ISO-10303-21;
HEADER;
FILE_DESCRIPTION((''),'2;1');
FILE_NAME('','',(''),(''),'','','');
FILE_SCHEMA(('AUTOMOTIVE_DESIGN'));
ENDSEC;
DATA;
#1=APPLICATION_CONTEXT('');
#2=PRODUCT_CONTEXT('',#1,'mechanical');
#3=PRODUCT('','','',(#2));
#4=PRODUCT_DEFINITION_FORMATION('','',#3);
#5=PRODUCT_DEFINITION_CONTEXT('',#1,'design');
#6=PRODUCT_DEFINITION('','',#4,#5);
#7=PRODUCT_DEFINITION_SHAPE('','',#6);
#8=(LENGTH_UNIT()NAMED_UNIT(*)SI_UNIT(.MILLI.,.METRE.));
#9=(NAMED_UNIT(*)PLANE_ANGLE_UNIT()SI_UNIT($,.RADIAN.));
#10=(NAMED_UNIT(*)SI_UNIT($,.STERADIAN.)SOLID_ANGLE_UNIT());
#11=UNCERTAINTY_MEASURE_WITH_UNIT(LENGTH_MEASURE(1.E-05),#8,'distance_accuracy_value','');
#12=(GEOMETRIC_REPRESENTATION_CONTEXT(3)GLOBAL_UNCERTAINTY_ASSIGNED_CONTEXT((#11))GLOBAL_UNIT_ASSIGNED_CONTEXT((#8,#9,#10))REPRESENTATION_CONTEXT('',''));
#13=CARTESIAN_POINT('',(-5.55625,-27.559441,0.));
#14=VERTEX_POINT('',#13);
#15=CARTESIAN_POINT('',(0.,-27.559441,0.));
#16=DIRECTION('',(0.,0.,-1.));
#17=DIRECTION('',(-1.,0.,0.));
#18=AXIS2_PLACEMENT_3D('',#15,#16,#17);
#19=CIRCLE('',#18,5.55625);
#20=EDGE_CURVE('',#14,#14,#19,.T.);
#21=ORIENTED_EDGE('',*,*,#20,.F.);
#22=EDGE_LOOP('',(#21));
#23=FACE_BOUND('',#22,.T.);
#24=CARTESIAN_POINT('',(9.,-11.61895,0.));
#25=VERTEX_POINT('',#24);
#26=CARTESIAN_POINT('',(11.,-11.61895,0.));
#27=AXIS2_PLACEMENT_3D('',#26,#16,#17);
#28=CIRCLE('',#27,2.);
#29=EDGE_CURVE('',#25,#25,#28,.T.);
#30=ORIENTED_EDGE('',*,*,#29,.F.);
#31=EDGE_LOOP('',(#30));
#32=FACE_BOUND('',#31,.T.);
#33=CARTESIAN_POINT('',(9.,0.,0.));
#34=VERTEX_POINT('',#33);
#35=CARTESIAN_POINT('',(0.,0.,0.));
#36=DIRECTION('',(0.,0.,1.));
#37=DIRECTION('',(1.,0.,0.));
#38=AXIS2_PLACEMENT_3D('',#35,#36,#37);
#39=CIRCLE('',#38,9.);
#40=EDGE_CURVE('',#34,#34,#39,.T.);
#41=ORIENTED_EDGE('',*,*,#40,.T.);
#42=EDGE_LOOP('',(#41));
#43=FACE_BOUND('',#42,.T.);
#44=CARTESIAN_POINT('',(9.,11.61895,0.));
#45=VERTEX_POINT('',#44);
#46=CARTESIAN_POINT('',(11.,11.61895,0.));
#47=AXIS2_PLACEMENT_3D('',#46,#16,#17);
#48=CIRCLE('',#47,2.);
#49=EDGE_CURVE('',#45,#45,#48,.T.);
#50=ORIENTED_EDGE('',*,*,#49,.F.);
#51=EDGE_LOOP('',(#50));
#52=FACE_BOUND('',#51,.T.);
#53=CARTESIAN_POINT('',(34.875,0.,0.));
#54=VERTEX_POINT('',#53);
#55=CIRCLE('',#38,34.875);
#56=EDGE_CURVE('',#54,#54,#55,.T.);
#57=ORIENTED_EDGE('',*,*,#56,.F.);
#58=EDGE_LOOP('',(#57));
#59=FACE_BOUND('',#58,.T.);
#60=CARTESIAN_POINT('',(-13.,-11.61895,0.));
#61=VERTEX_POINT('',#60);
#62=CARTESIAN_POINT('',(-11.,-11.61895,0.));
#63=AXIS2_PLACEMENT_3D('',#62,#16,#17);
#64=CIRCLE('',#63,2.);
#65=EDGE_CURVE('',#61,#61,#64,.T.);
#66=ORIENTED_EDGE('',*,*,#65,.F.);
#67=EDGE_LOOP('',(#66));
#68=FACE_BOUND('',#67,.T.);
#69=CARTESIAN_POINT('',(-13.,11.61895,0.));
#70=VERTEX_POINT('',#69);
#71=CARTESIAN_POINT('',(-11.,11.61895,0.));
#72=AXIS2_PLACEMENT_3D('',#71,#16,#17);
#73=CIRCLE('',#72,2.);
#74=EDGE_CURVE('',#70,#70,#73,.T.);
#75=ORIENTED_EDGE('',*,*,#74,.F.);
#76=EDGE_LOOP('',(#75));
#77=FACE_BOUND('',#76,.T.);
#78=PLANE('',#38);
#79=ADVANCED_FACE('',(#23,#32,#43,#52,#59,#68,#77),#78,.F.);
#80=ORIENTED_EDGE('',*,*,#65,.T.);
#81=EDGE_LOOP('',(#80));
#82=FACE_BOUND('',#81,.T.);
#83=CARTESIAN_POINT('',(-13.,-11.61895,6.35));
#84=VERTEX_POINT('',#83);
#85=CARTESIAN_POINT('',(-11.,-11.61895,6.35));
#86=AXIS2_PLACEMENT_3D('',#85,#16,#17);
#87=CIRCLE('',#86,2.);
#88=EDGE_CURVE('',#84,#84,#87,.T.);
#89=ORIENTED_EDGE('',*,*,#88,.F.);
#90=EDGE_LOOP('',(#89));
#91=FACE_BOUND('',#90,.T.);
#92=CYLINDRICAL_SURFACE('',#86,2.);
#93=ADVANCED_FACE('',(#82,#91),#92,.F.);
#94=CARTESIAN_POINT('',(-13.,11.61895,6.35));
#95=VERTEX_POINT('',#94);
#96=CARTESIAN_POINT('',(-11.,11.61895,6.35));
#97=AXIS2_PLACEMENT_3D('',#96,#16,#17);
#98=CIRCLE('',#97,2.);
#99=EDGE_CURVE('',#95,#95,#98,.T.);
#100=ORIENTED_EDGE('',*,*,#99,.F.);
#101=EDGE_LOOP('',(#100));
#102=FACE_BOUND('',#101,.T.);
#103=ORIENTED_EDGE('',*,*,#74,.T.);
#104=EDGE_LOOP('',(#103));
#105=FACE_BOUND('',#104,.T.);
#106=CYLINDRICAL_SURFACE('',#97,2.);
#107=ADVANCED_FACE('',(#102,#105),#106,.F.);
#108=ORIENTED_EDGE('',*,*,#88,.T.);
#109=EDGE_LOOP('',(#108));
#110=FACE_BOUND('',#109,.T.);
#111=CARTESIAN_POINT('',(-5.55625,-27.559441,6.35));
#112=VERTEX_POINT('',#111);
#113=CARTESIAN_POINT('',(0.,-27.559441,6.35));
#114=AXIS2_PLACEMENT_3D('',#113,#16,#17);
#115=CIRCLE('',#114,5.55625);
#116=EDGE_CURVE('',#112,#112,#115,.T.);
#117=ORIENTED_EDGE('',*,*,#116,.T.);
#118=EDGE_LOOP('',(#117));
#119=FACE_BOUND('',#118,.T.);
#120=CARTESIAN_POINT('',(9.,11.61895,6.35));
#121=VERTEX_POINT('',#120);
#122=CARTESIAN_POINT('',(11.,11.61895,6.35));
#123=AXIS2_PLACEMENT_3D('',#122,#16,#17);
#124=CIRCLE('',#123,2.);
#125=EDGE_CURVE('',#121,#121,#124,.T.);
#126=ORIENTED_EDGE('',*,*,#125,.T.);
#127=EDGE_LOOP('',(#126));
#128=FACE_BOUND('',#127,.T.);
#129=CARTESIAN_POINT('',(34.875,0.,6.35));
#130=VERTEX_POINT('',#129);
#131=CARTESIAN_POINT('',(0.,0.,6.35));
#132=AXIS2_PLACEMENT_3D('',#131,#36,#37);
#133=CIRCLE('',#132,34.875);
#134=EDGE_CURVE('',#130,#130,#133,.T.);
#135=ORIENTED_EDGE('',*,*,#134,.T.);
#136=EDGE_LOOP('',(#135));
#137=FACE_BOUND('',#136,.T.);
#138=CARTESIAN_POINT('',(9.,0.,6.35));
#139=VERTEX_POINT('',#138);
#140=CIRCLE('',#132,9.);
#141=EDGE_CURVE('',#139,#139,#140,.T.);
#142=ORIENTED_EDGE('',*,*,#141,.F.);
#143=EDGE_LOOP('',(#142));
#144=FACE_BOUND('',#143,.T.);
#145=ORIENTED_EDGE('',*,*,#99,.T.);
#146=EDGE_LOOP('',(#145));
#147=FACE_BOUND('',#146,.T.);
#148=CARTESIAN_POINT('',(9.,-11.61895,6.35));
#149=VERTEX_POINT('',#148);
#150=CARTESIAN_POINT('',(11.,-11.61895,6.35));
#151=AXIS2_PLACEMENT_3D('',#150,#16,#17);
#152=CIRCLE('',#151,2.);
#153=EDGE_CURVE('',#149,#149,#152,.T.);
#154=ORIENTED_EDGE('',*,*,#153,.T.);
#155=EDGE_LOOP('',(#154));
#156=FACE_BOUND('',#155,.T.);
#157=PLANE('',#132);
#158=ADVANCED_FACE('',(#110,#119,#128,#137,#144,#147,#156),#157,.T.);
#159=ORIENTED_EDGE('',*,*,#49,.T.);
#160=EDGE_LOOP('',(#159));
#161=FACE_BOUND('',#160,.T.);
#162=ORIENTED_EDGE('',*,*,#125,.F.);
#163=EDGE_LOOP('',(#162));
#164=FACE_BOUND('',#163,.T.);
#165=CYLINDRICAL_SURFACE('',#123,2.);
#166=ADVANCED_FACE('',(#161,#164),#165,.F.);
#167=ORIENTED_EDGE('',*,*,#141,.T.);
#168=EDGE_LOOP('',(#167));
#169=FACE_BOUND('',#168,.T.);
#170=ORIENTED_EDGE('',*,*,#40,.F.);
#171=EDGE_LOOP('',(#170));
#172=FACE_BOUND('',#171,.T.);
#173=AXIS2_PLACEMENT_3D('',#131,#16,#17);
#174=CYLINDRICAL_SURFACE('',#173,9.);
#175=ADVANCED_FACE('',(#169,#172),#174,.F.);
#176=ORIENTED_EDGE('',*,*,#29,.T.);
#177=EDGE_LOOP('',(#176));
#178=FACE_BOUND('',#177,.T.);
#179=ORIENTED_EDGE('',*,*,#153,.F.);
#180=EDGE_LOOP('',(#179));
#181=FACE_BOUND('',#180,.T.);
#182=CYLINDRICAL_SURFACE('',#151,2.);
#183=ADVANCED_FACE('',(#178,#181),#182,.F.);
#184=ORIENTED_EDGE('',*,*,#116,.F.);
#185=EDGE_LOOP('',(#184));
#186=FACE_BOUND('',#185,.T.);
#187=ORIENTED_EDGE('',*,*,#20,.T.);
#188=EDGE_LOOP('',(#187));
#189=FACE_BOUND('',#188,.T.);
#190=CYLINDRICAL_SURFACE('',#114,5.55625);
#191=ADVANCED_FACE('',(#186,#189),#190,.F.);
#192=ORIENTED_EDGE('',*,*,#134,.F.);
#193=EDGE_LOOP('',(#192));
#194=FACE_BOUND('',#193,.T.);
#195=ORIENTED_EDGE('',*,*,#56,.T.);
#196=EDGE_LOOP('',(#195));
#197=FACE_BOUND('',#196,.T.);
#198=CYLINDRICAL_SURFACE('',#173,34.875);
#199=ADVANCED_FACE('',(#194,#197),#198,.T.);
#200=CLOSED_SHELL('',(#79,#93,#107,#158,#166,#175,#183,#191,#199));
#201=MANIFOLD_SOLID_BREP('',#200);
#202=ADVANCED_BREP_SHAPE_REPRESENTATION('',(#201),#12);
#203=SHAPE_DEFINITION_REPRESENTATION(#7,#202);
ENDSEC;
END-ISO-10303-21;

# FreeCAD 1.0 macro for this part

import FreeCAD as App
import Part
import Sketcher
Q = App.Units.Quantity

doc = App.newDocument("Part")
body = doc.addObject("PartDesign::Body", "Body")

sketch1 = body.newObject("Sketcher::SketchObject", "Sketch")
sketch1.AttachmentSupport = (doc.getObject("XY_Plane"), [""])
sketch1.MapMode = "FlatFace"
sketch1.addGeometry([
    Part.Circle(App.Vector(0, 0, 0), App.Vector(0, 0, 1), 35),
    Part.Circle(App.Vector(0, 0, 0), App.Vector(0, 0, 1), 9),
], False)
sketch1.addConstraint([
    Sketcher.Constraint("Coincident", 0, 3, -1, 1),
    Sketcher.Constraint("Coincident", 1, 3, -1, 1),
    Sketcher.Constraint("Diameter", 1, Q("18 mm")),
    Sketcher.Constraint("Diameter", 0, Q("69.75 mm")),
])
pad1 = body.newObject("PartDesign::Pad", "Pad")
pad1.Profile = sketch1
pad1.Length = 6.35

sketch2 = body.newObject("Sketcher::SketchObject", "Sketch001")
sketch2.AttachmentSupport = (doc.getObject("XY_Plane"), [""])
sketch2.MapMode = "FlatFace"
sketch2.addGeometry([
    Part.Circle(App.Vector(11, 11.6, 0), App.Vector(0, 0, 1), 2),
    Part.Circle(App.Vector(-11, 11.6, 0), App.Vector(0, 0, 1), 2),
    Part.Circle(App.Vector(-11, -11.6, 0), App.Vector(0, 0, 1), 2),
    Part.Circle(App.Vector(11, -11.6, 0), App.Vector(0, 0, 1), 2),
], False)
sketch2.addConstraint([
    Sketcher.Constraint("Equal", 0, 1),
    Sketcher.Constraint("Equal", 1, 2),
    Sketcher.Constraint("Equal", 2, 3),
    Sketcher.Constraint("Symmetric", 0, 3, 2, 3, -1, 1),
    Sketcher.Constraint("Symmetric", 1, 3, 3, 3, -1, 1),
    Sketcher.Constraint("Symmetric", 0, 3, 1, 3, -2),
    Sketcher.Constraint("Diameter", 0, Q("4 mm")),
    Sketcher.Constraint("DistanceX", -1, 1, 0, 3, Q("11 mm")),
    Sketcher.Constraint("DistanceY", 2, 3, 1, 3, Q("23.2379 mm")),
])
pocket1 = body.newObject("PartDesign::Pocket", "Pocket")
pocket1.Profile = sketch2
pocket1.Type = "ThroughAll"
pocket1.Reversed = True

sketch3 = body.newObject("Sketcher::SketchObject", "Sketch002")
sketch3.AttachmentSupport = (doc.getObject("XY_Plane"), [""])
sketch3.MapMode = "FlatFace"
sketch3.addGeometry(Part.Circle(App.Vector(0, -28, 0), App.Vector(0, 0, 1), 6), False)
sketch3.addConstraint([
    Sketcher.Constraint("PointOnObject", 0, 3, -2),
    Sketcher.Constraint("Diameter", 0, Q("11.1125 mm")),
    Sketcher.Constraint("DistanceY", 0, 3, -1, 1, Q("27.559441 mm")),
])
pocket2 = body.newObject("PartDesign::Pocket", "Pocket001")
pocket2.Profile = sketch3
pocket2.Type = "ThroughAll"
pocket2.Reversed = True

doc.recompute()
